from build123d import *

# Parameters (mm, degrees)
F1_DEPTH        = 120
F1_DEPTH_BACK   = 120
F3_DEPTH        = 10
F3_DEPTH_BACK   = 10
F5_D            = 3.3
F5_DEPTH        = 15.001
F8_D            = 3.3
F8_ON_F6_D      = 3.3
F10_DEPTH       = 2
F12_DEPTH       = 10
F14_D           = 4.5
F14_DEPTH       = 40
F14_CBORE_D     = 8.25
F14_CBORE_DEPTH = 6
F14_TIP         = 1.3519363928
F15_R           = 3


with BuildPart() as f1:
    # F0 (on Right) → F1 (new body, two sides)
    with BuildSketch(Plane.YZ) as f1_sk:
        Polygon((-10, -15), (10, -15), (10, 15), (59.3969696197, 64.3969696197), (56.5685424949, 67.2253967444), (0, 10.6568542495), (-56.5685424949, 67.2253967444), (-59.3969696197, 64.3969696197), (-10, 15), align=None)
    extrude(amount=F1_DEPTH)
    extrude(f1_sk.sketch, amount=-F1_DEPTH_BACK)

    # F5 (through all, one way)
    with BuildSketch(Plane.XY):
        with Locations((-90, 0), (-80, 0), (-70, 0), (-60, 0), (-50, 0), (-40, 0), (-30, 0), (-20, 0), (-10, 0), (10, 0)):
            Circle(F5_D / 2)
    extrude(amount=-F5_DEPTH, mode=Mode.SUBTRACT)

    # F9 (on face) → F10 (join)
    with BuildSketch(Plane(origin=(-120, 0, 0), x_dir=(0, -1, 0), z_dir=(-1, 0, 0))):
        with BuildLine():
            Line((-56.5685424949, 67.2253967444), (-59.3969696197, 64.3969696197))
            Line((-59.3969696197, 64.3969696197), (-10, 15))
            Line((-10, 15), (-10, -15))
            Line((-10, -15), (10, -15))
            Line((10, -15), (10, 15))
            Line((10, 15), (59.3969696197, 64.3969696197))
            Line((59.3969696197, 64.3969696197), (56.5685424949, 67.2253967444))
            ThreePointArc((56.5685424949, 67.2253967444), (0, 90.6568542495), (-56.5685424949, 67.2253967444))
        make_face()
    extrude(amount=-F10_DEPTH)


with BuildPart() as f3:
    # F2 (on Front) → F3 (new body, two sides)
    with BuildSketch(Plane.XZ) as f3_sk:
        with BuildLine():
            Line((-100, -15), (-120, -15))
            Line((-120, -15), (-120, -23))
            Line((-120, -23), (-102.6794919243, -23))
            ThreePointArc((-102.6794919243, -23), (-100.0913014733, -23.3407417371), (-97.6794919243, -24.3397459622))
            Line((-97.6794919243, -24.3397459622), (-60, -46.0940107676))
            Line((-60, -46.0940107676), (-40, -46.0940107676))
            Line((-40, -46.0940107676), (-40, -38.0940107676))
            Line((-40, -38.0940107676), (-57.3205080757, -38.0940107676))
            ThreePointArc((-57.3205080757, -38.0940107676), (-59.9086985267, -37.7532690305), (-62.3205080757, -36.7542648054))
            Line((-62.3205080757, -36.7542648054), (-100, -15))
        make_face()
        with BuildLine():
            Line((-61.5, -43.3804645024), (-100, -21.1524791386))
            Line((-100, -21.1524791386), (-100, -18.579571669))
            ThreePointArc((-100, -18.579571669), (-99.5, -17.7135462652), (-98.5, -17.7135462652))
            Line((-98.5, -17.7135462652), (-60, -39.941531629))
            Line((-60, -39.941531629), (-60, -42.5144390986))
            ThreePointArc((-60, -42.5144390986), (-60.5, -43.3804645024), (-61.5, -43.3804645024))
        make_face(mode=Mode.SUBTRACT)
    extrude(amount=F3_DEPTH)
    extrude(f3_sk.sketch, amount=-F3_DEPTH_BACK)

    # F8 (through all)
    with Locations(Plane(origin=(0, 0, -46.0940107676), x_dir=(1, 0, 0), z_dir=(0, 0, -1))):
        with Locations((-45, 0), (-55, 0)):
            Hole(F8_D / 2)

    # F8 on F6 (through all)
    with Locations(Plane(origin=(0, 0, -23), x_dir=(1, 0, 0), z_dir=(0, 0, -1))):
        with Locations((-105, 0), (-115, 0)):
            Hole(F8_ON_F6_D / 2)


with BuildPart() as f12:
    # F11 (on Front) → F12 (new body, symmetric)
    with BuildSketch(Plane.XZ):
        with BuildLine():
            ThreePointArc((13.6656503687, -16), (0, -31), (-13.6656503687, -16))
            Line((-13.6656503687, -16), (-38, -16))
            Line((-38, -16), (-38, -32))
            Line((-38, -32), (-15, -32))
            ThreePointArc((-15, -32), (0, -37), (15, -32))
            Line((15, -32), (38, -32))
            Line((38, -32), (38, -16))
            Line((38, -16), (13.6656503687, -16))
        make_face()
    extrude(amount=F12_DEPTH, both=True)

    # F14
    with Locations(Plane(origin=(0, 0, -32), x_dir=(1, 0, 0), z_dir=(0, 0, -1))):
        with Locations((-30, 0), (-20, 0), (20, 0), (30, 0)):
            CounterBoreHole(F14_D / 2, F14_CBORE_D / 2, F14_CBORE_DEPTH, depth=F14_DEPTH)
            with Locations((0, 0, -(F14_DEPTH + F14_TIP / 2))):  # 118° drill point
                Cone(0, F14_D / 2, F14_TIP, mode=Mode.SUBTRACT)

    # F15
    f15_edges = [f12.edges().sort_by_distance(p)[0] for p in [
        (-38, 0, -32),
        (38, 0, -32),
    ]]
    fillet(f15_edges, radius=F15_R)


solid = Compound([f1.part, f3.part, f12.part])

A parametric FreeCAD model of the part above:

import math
import FreeCAD as App
import Part
import Sketcher

V = App.Vector
Q = App.Units.Quantity


def edges_at(feature, points):
    """Names of the edges that pass closest to the given points."""
    edges = feature.Shape.Edges
    near = lambda p: min(range(len(edges)), key=lambda i: edges[i].distToShape(Part.Vertex(*p))[0])
    return sorted({f"Edge{near(p) + 1}" for p in points})

doc = App.newDocument("Part")
body = doc.addObject("PartDesign::Body", "Body")

sketch1 = body.newObject("Sketcher::SketchObject", "Sketch")
sketch1.AttachmentSupport = (doc.getObject("YZ_Plane"), [""])
sketch1.MapMode = "FlatFace"
sketch1.addGeometry(Part.LineSegment(V(-10, -15, 0), V(10, -15, 0)), False)
sketch1.addGeometry(Part.LineSegment(V(10, -15, 0), V(10, 15, 0)), False)
sketch1.addGeometry(Part.LineSegment(V(10, 15, 0), V(59.4, 64.4, 0)), False)
sketch1.addGeometry(Part.LineSegment(V(59.4, 64.4, 0), V(56.6, 67.2, 0)), False)
sketch1.addGeometry(Part.LineSegment(V(56.6, 67.2, 0), V(0, 10.7, 0)), False)
sketch1.addGeometry(Part.LineSegment(V(0, 10.7, 0), V(-56.6, 67.2, 0)), False)
sketch1.addGeometry(Part.LineSegment(V(-56.6, 67.2, 0), V(-59.4, 64.4, 0)), False)
sketch1.addGeometry(Part.LineSegment(V(-59.4, 64.4, 0), V(-10, 15, 0)), False)
sketch1.addGeometry(Part.LineSegment(V(-10, 15, 0), V(-10, -15, 0)), False)
sketch1.addConstraint(Sketcher.Constraint("Coincident", 0, 2, 1, 1))
sketch1.addConstraint(Sketcher.Constraint("Coincident", 1, 2, 2, 1))
sketch1.addConstraint(Sketcher.Constraint("Coincident", 2, 2, 3, 1))
sketch1.addConstraint(Sketcher.Constraint("Coincident", 3, 2, 4, 1))
sketch1.addConstraint(Sketcher.Constraint("Coincident", 4, 2, 5, 1))
sketch1.addConstraint(Sketcher.Constraint("Coincident", 5, 2, 6, 1))
sketch1.addConstraint(Sketcher.Constraint("Coincident", 6, 2, 7, 1))
sketch1.addConstraint(Sketcher.Constraint("Coincident", 7, 2, 8, 1))
sketch1.addConstraint(Sketcher.Constraint("Coincident", 8, 2, 0, 1))
sketch1.addConstraint(Sketcher.Constraint("Horizontal", 0))
sketch1.addConstraint(Sketcher.Constraint("Vertical", 1))
sketch1.addConstraint(Sketcher.Constraint("Vertical", 8))
sketch1.addConstraint(Sketcher.Constraint("Symmetric", 0, 2, 7, 2, -1, 1))
sketch1.addConstraint(Sketcher.Constraint("Symmetric", 3, 2, 5, 2, -2))
sketch1.addConstraint(Sketcher.Constraint("Symmetric", 2, 2, 6, 2, -2))
sketch1.addConstraint(Sketcher.Constraint("PointOnObject", 4, 2, -2))
sketch1.addConstraint(Sketcher.Constraint("Perpendicular", 2, 3))
sketch1.addConstraint(Sketcher.Constraint("Perpendicular", 3, 4))
sketch1.addConstraint(Sketcher.Constraint("Perpendicular", 4, 5))
sketch1.addConstraint(Sketcher.Constraint("Perpendicular", 6, 7))
sketch1.addConstraint(Sketcher.Constraint("DistanceX", 0, 1, 0, 2, Q("20 mm")))
sketch1.addConstraint(Sketcher.Constraint("DistanceY", 1, 1, 1, 2, Q("30 mm")))
sketch1.addConstraint(Sketcher.Constraint("Distance", 3, Q("4 mm")))
sketch1.addConstraint(Sketcher.Constraint("Distance", 4, Q("80 mm")))
pad1 = body.newObject("PartDesign::Pad", "Pad")
pad1.Profile = sketch1
pad1.Type = "TwoLengths"
pad1.Length = 120
pad1.Length2 = 120

sketch2 = body.newObject("Sketcher::SketchObject", "Sketch001")
sketch2.AttachmentSupport = (doc.getObject("XY_Plane"), [""])
sketch2.MapMode = "FlatFace"
sketch2.addGeometry(Part.Circle(V(10, 0, 0), V(0, 0, 1), 1.6), False)
sketch2.addGeometry(Part.Circle(V(-90, 0, 0), V(0, 0, 1), 1.6), False)
sketch2.addGeometry(Part.Circle(V(-80, 0, 0), V(0, 0, 1), 1.6), False)
sketch2.addGeometry(Part.Circle(V(-70, 0, 0), V(0, 0, 1), 1.6), False)
sketch2.addGeometry(Part.Circle(V(-60, 0, 0), V(0, 0, 1), 1.6), False)
sketch2.addGeometry(Part.Circle(V(-50, 0, 0), V(0, 0, 1), 1.6), False)
sketch2.addGeometry(Part.Circle(V(-40, 0, 0), V(0, 0, 1), 1.6), False)
sketch2.addGeometry(Part.Circle(V(-30, 0, 0), V(0, 0, 1), 1.6), False)
sketch2.addGeometry(Part.Circle(V(-20, 0, 0), V(0, 0, 1), 1.6), False)
sketch2.addGeometry(Part.Circle(V(-10, 0, 0), V(0, 0, 1), 1.6), False)
sketch2.addConstraint(Sketcher.Constraint("Equal", 0, 1))
sketch2.addConstraint(Sketcher.Constraint("Equal", 1, 2))
sketch2.addConstraint(Sketcher.Constraint("Equal", 2, 3))
sketch2.addConstraint(Sketcher.Constraint("Equal", 3, 4))
sketch2.addConstraint(Sketcher.Constraint("Equal", 4, 5))
sketch2.addConstraint(Sketcher.Constraint("Equal", 5, 6))
sketch2.addConstraint(Sketcher.Constraint("Equal", 6, 7))
sketch2.addConstraint(Sketcher.Constraint("Equal", 7, 8))
sketch2.addConstraint(Sketcher.Constraint("Equal", 8, 9))
sketch2.addConstraint(Sketcher.Constraint("Symmetric", 0, 3, 9, 3, -1, 1))
sketch2.addConstraint(Sketcher.Constraint("PointOnObject", 0, 3, -1))
sketch2.addConstraint(Sketcher.Constraint("PointOnObject", 1, 3, -1))
sketch2.addConstraint(Sketcher.Constraint("PointOnObject", 2, 3, -1))
sketch2.addConstraint(Sketcher.Constraint("PointOnObject", 3, 3, -1))
sketch2.addConstraint(Sketcher.Constraint("PointOnObject", 4, 3, -1))
sketch2.addConstraint(Sketcher.Constraint("PointOnObject", 5, 3, -1))
sketch2.addConstraint(Sketcher.Constraint("PointOnObject", 6, 3, -1))
sketch2.addConstraint(Sketcher.Constraint("PointOnObject", 7, 3, -1))
sketch2.addConstraint(Sketcher.Constraint("PointOnObject", 8, 3, -1))
sketch2.addConstraint(Sketcher.Constraint("Diameter", 0, Q("3.3 mm")))
sketch2.addConstraint(Sketcher.Constraint("DistanceX", -1, 1, 0, 3, Q("10 mm")))
sketch2.addConstraint(Sketcher.Constraint("DistanceX", 1, 3, -1, 1, Q("90 mm")))
sketch2.addConstraint(Sketcher.Constraint("DistanceX", 2, 3, -1, 1, Q("80 mm")))
sketch2.addConstraint(Sketcher.Constraint("DistanceX", 3, 3, -1, 1, Q("70 mm")))
sketch2.addConstraint(Sketcher.Constraint("DistanceX", 4, 3, -1, 1, Q("60 mm")))
sketch2.addConstraint(Sketcher.Constraint("DistanceX", 5, 3, -1, 1, Q("50 mm")))
sketch2.addConstraint(Sketcher.Constraint("DistanceX", 6, 3, -1, 1, Q("40 mm")))
sketch2.addConstraint(Sketcher.Constraint("DistanceX", 7, 3, -1, 1, Q("30 mm")))
sketch2.addConstraint(Sketcher.Constraint("DistanceX", 8, 3, -1, 1, Q("20 mm")))
pocket1 = body.newObject("PartDesign::Pocket", "Pocket")
pocket1.Profile = sketch2
pocket1.Type = "ThroughAll"

sketch3 = body.newObject("Sketcher::SketchObject", "Sketch002")
sketch3.AttachmentSupport = (doc.getObject("YZ_Plane"), [""])
sketch3.MapMode = "FlatFace"
sketch3.AttachmentOffset = App.Placement(V(0, 0, -120), App.Rotation())
sketch3.addGeometry(Part.LineSegment(V(56.6, 67.2, 0), V(59.4, 64.4, 0)), False)
sketch3.addGeometry(Part.LineSegment(V(59.4, 64.4, 0), V(10, 15, 0)), False)
sketch3.addGeometry(Part.LineSegment(V(10, 15, 0), V(10, -15, 0)), False)
sketch3.addGeometry(Part.LineSegment(V(10, -15, 0), V(-10, -15, 0)), False)
sketch3.addGeometry(Part.LineSegment(V(-10, -15, 0), V(-10, 15, 0)), False)
sketch3.addGeometry(Part.LineSegment(V(-10, 15, 0), V(-59.4, 64.4, 0)), False)
sketch3.addGeometry(Part.LineSegment(V(-59.4, 64.4, 0), V(-56.6, 67.2, 0)), False)
sketch3.addGeometry(Part.ArcOfCircle(Part.Circle(V(0, 10.7, 0), V(0, 0, 1), 80), math.radians(45), math.radians(135)), False)
sketch3.addConstraint(Sketcher.Constraint("Coincident", 0, 2, 1, 1))
sketch3.addConstraint(Sketcher.Constraint("Coincident", 1, 2, 2, 1))
sketch3.addConstraint(Sketcher.Constraint("Coincident", 2, 2, 3, 1))
sketch3.addConstraint(Sketcher.Constraint("Coincident", 3, 2, 4, 1))
sketch3.addConstraint(Sketcher.Constraint("Coincident", 4, 2, 5, 1))
sketch3.addConstraint(Sketcher.Constraint("Coincident", 5, 2, 6, 1))
sketch3.addConstraint(Sketcher.Constraint("Tangent", 6, 2, 7, 2))
sketch3.addConstraint(Sketcher.Constraint("Tangent", 7, 1, 0, 1))
sketch3.addConstraint(Sketcher.Constraint("Vertical", 2))
sketch3.addConstraint(Sketcher.Constraint("Horizontal", 3))
sketch3.addConstraint(Sketcher.Constraint("Vertical", 4))
sketch3.addConstraint(Sketcher.Constraint("Symmetric", 1, 2, 3, 2, -1, 1))
sketch3.addConstraint(Sketcher.Constraint("Symmetric", 0, 2, 5, 2, -2))
sketch3.addConstraint(Sketcher.Constraint("PointOnObject", 7, 3, -2))
sketch3.addConstraint(Sketcher.Constraint("Perpendicular", 0, 1))
sketch3.addConstraint(Sketcher.Constraint("Perpendicular", 1, 5))
sketch3.addConstraint(Sketcher.Constraint("Perpendicular", 5, 6))
sketch3.addConstraint(Sketcher.Constraint("Radius", 7, Q("80 mm")))
sketch3.addConstraint(Sketcher.Constraint("DistanceX", 3, 2, 3, 1, Q("20 mm")))
sketch3.addConstraint(Sketcher.Constraint("DistanceY", 2, 2, 2, 1, Q("30 mm")))
sketch3.addConstraint(Sketcher.Constraint("Distance", 0, Q("4 mm")))
pad2 = body.newObject("PartDesign::Pad", "Pad001")
pad2.Profile = sketch3
pad2.Length = 2
body2 = doc.addObject("PartDesign::Body", "Body001")

sketch4 = body2.newObject("Sketcher::SketchObject", "Sketch003")
sketch4.AttachmentSupport = (doc.getObject("XZ_Plane001"), [""])
sketch4.MapMode = "FlatFace"
sketch4.addGeometry(Part.LineSegment(V(-100, -15, 0), V(-120, -15, 0)), False)
sketch4.addGeometry(Part.LineSegment(V(-120, -15, 0), V(-120, -23, 0)), False)
sketch4.addGeometry(Part.LineSegment(V(-120, -23, 0), V(-102.7, -23, 0)), False)
sketch4.addGeometry(Part.ArcOfCircle(Part.Circle(V(-102.7, -33, 0), V(0, 0, 1), 10), math.radians(60), math.radians(90)), False)
sketch4.addGeometry(Part.LineSegment(V(-97.7, -24.3, 0), V(-60, -46.1, 0)), False)
sketch4.addGeometry(Part.LineSegment(V(-60, -46.1, 0), V(-40, -46.1, 0)), False)
sketch4.addGeometry(Part.LineSegment(V(-40, -46.1, 0), V(-40, -38.1, 0)), False)
sketch4.addGeometry(Part.LineSegment(V(-40, -38.1, 0), V(-57.3, -38.1, 0)), False)
sketch4.addGeometry(Part.ArcOfCircle(Part.Circle(V(-57.3, -28.1, 0), V(0, 0, 1), 10), math.radians(-120), math.radians(-90)), False)
sketch4.addGeometry(Part.LineSegment(V(-62.3, -36.8, 0), V(-100, -15, 0)), False)
sketch4.addGeometry(Part.ArcOfCircle(Part.Circle(V(-61, -42.5, 0), V(0, 0, 1), 1), math.radians(-120), math.radians(0)), False)
sketch4.addGeometry(Part.LineSegment(V(-61.5, -43.4, 0), V(-100, -21.2, 0)), False)
sketch4.addGeometry(Part.LineSegment(V(-100, -21.2, 0), V(-100, -18.6, 0)), False)
sketch4.addGeometry(Part.ArcOfCircle(Part.Circle(V(-99, -18.6, 0), V(0, 0, 1), 1), math.radians(60), math.radians(180)), False)
sketch4.addGeometry(Part.LineSegment(V(-98.5, -17.7, 0), V(-60, -39.9, 0)), False)
sketch4.addGeometry(Part.LineSegment(V(-60, -39.9, 0), V(-60, -42.5, 0)), False)
sketch4.addConstraint(Sketcher.Constraint("Coincident", 0, 2, 1, 1))
sketch4.addConstraint(Sketcher.Constraint("Coincident", 1, 2, 2, 1))
sketch4.addConstraint(Sketcher.Constraint("Tangent", 2, 2, 3, 2))
sketch4.addConstraint(Sketcher.Constraint("Tangent", 3, 1, 4, 1))
sketch4.addConstraint(Sketcher.Constraint("Coincident", 4, 2, 5, 1))
sketch4.addConstraint(Sketcher.Constraint("Coincident", 5, 2, 6, 1))
sketch4.addConstraint(Sketcher.Constraint("Coincident", 6, 2, 7, 1))
sketch4.addConstraint(Sketcher.Constraint("Tangent", 7, 2, 8, 2))
sketch4.addConstraint(Sketcher.Constraint("Tangent", 8, 1, 9, 1))
sketch4.addConstraint(Sketcher.Constraint("Coincident", 9, 2, 0, 1))
sketch4.addConstraint(Sketcher.Constraint("Tangent", 10, 1, 11, 1))
sketch4.addConstraint(Sketcher.Constraint("Coincident", 11, 2, 12, 1))
sketch4.addConstraint(Sketcher.Constraint("Tangent", 12, 2, 13, 2))
sketch4.addConstraint(Sketcher.Constraint("Tangent", 13, 1, 14, 1))
sketch4.addConstraint(Sketcher.Constraint("Coincident", 14, 2, 15, 1))
sketch4.addConstraint(Sketcher.Constraint("Tangent", 15, 2, 10, 2))
sketch4.addConstraint(Sketcher.Constraint("Horizontal", 0))
sketch4.addConstraint(Sketcher.Constraint("Vertical", 1))
sketch4.addConstraint(Sketcher.Constraint("Horizontal", 2))
sketch4.addConstraint(Sketcher.Constraint("Horizontal", 5))
sketch4.addConstraint(Sketcher.Constraint("Vertical", 6))
sketch4.addConstraint(Sketcher.Constraint("Horizontal", 7))
sketch4.addConstraint(Sketcher.Constraint("Vertical", 12))
sketch4.addConstraint(Sketcher.Constraint("Vertical", 15))
sketch4.addConstraint(Sketcher.Constraint("Equal", 3, 8))
sketch4.addConstraint(Sketcher.Constraint("Equal", 10, 13))
sketch4.addConstraint(Sketcher.Constraint("Parallel", 4, 9))
sketch4.addConstraint(Sketcher.Constraint("Parallel", 9, 11))
sketch4.addConstraint(Sketcher.Constraint("Parallel", 11, 14))
sketch4.addConstraint(Sketcher.Constraint("Vertical", 9, 2, 11, 2))
sketch4.addConstraint(Sketcher.Constraint("Vertical", 4, 2, 14, 2))
sketch4.addConstraint(Sketcher.Constraint("Equal", 0, 5))
sketch4.addConstraint(Sketcher.Constraint("Equal", 2, 7))
sketch4.addConstraint(Sketcher.Constraint("Radius", 3, Q("10 mm")))
sketch4.addConstraint(Sketcher.Constraint("Radius", 10, Q("1 mm")))
sketch4.addConstraint(Sketcher.Constraint("DistanceX", 0, 2, 0, 1, Q("20 mm")))
sketch4.addConstraint(Sketcher.Constraint("DistanceY", 1, 2, 1, 1, Q("8 mm")))
sketch4.addConstraint(Sketcher.Constraint("Angle", 4, Q("-30 deg")))
sketch4.addConstraint(Sketcher.Constraint("DistanceY", 3, 3, -1, 1, Q("33 mm")))
sketch4.addConstraint(Sketcher.Constraint("DistanceX", 10, 3, -1, 1, Q("61 mm")))
sketch4.addConstraint(Sketcher.Constraint("DistanceX", 13, 3, -1, 1, Q("99 mm")))
sketch4.addConstraint(Sketcher.Constraint("DistanceX", 2, 1, 2, 2, Q("17.320508 mm")))
sketch4.addConstraint(Sketcher.Constraint("DistanceY", 10, 1, 8, 1, Q("6.6262 mm")))
sketch4.addConstraint(Sketcher.Constraint("DistanceY", 3, 1, 13, 1, Q("6.6262 mm")))
pad3 = body2.newObject("PartDesign::Pad", "Pad002")
pad3.Profile = sketch4
pad3.Type = "TwoLengths"
pad3.Length = 10
pad3.Length2 = 10

sketch5 = body2.newObject("Sketcher::SketchObject", "Sketch004")
sketch5.AttachmentSupport = (doc.getObject("XY_Plane001"), [""])
sketch5.MapMode = "FlatFace"
sketch5.AttachmentOffset = App.Placement(V(0, 0, -46.094011), App.Rotation())
sketch5.addGeometry(Part.Circle(V(-45, 0, 0), V(0, 0, 1), 1.6), False)
sketch5.addGeometry(Part.Circle(V(-55, 0, 0), V(0, 0, 1), 1.6), False)
sketch5.addConstraint(Sketcher.Constraint("Equal", 0, 1))
sketch5.addConstraint(Sketcher.Constraint("PointOnObject", 0, 3, -1))
sketch5.addConstraint(Sketcher.Constraint("PointOnObject", 1, 3, -1))
sketch5.addConstraint(Sketcher.Constraint("Diameter", 0, Q("3.3 mm")))
sketch5.addConstraint(Sketcher.Constraint("DistanceX", 0, 3, -1, 1, Q("45 mm")))
sketch5.addConstraint(Sketcher.Constraint("DistanceX", 1, 3, -1, 1, Q("55 mm")))
doc.recompute()
hole = body2.newObject("PartDesign::Hole", "Hole")
hole.Profile = sketch5
hole.ThreadType = "None"
hole.Diameter = 3.3
hole.DepthType = "ThroughAll"
hole.Reversed = True

sketch6 = body2.newObject("Sketcher::SketchObject", "Sketch005")
sketch6.AttachmentSupport = (doc.getObject("XY_Plane001"), [""])
sketch6.MapMode = "FlatFace"
sketch6.AttachmentOffset = App.Placement(V(0, 0, -23), App.Rotation())
sketch6.addGeometry(Part.Circle(V(-105, 0, 0), V(0, 0, 1), 1.6), False)
sketch6.addGeometry(Part.Circle(V(-115, 0, 0), V(0, 0, 1), 1.6), False)
sketch6.addConstraint(Sketcher.Constraint("Equal", 0, 1))
sketch6.addConstraint(Sketcher.Constraint("PointOnObject", 0, 3, -1))
sketch6.addConstraint(Sketcher.Constraint("PointOnObject", 1, 3, -1))
sketch6.addConstraint(Sketcher.Constraint("Diameter", 0, Q("3.3 mm")))
sketch6.addConstraint(Sketcher.Constraint("DistanceX", 0, 3, -1, 1, Q("105 mm")))
sketch6.addConstraint(Sketcher.Constraint("DistanceX", 1, 3, -1, 1, Q("115 mm")))
doc.recompute()
hole2 = body2.newObject("PartDesign::Hole", "Hole001")
hole2.Profile = sketch6
hole2.ThreadType = "None"
hole2.Diameter = 3.3
hole2.DepthType = "ThroughAll"
hole2.Reversed = True
body3 = doc.addObject("PartDesign::Body", "Body002")

sketch7 = body3.newObject("Sketcher::SketchObject", "Sketch006")
sketch7.AttachmentSupport = (doc.getObject("XZ_Plane002"), [""])
sketch7.MapMode = "FlatFace"
sketch7.addGeometry(Part.ArcOfCircle(Part.Circle(V(0, -17, 0), V(0, 0, 1), 14), math.radians(175), math.radians(365)), False)
sketch7.addGeometry(Part.LineSegment(V(-14, -16, 0), V(-38, -16, 0)), False)
sketch7.addGeometry(Part.LineSegment(V(-38, -16, 0), V(-38, -32, 0)), False)
sketch7.addGeometry(Part.LineSegment(V(-38, -32, 0), V(-15, -32, 0)), False)
sketch7.addGeometry(Part.ArcOfCircle(Part.Circle(V(0, -12, 0), V(0, 0, 1), 25), math.radians(-127), math.radians(-53)), False)
sketch7.addGeometry(Part.LineSegment(V(15, -32, 0), V(38, -32, 0)), False)
sketch7.addGeometry(Part.LineSegment(V(38, -32, 0), V(38, -16, 0)), False)
sketch7.addGeometry(Part.LineSegment(V(38, -16, 0), V(14, -16, 0)), False)
sketch7.addConstraint(Sketcher.Constraint("Coincident", 0, 1, 1, 1))
sketch7.addConstraint(Sketcher.Constraint("Coincident", 1, 2, 2, 1))
sketch7.addConstraint(Sketcher.Constraint("Coincident", 2, 2, 3, 1))
sketch7.addConstraint(Sketcher.Constraint("Coincident", 3, 2, 4, 1))
sketch7.addConstraint(Sketcher.Constraint("Coincident", 4, 2, 5, 1))
sketch7.addConstraint(Sketcher.Constraint("Coincident", 5, 2, 6, 1))
sketch7.addConstraint(Sketcher.Constraint("Coincident", 6, 2, 7, 1))
sketch7.addConstraint(Sketcher.Constraint("Coincident", 7, 2, 0, 2))
sketch7.addConstraint(Sketcher.Constraint("Horizontal", 1))
sketch7.addConstraint(Sketcher.Constraint("Vertical", 2))
sketch7.addConstraint(Sketcher.Constraint("Horizontal", 3))
sketch7.addConstraint(Sketcher.Constraint("Horizontal", 5))
sketch7.addConstraint(Sketcher.Constraint("Vertical", 6))
sketch7.addConstraint(Sketcher.Constraint("Horizontal", 7))
sketch7.addConstraint(Sketcher.Constraint("Symmetric", 3, 2, 4, 2, -2))
sketch7.addConstraint(Sketcher.Constraint("Symmetric", 1, 2, 6, 2, -2))
sketch7.addConstraint(Sketcher.Constraint("PointOnObject", 0, 3, -2))
sketch7.addConstraint(Sketcher.Constraint("Radius", 4, Q("25 mm")))
sketch7.addConstraint(Sketcher.Constraint("DistanceX", 3, 1, 3, 2, Q("23 mm")))
sketch7.addConstraint(Sketcher.Constraint("DistanceY", 2, 2, 2, 1, Q("16 mm")))
sketch7.addConstraint(Sketcher.Constraint("DistanceY", 4, 3, -1, 1, Q("12 mm")))
sketch7.addConstraint(Sketcher.Constraint("DistanceY", 0, 1, -1, 1, Q("16 mm")))
sketch7.addConstraint(Sketcher.Constraint("Radius", 0, Q("13.725 mm")))
sketch7.addConstraint(Sketcher.Constraint("DistanceY", 0, 3, -1, 1, Q("17.275 mm")))
pad4 = body3.newObject("PartDesign::Pad", "Pad003")
pad4.Profile = sketch7
pad4.Length = 20
pad4.Midplane = True

sketch8 = body3.newObject("Sketcher::SketchObject", "Sketch007")
sketch8.AttachmentSupport = (doc.getObject("XY_Plane002"), [""])
sketch8.MapMode = "FlatFace"
sketch8.AttachmentOffset = App.Placement(V(0, 0, -32), App.Rotation())
sketch8.addGeometry(Part.Circle(V(-30, 0, 0), V(0, 0, 1), 2.2), False)
sketch8.addGeometry(Part.Circle(V(-20, 0, 0), V(0, 0, 1), 2.2), False)
sketch8.addGeometry(Part.Circle(V(20, 0, 0), V(0, 0, 1), 2.2), False)
sketch8.addGeometry(Part.Circle(V(30, 0, 0), V(0, 0, 1), 2.2), False)
sketch8.addConstraint(Sketcher.Constraint("Equal", 0, 1))
sketch8.addConstraint(Sketcher.Constraint("Equal", 1, 2))
sketch8.addConstraint(Sketcher.Constraint("Equal", 2, 3))
sketch8.addConstraint(Sketcher.Constraint("Symmetric", 1, 3, 2, 3, -1, 1))
sketch8.addConstraint(Sketcher.Constraint("Symmetric", 0, 3, 3, 3, -1, 1))
sketch8.addConstraint(Sketcher.Constraint("PointOnObject", 0, 3, -1))
sketch8.addConstraint(Sketcher.Constraint("PointOnObject", 1, 3, -1))
sketch8.addConstraint(Sketcher.Constraint("Diameter", 0, Q("4.5 mm")))
sketch8.addConstraint(Sketcher.Constraint("DistanceX", 0, 3, -1, 1, Q("30 mm")))
sketch8.addConstraint(Sketcher.Constraint("DistanceX", 1, 3, -1, 1, Q("20 mm")))
doc.recompute()
hole3 = body3.newObject("PartDesign::Hole", "Hole002")
hole3.Profile = sketch8
hole3.ThreadType = "None"
hole3.Diameter = 4.5
hole3.DepthType = "Dimension"
hole3.Depth = 40
hole3.DrillPoint = "Angled"
hole3.DrillPointAngle = 118
hole3.HoleCutType = "Counterbore"
hole3.HoleCutDiameter = 8.25
hole3.HoleCutDepth = 6
hole3.Reversed = True
doc.recompute()

fillet = body3.newObject("PartDesign::Fillet", "Fillet")
fillet.Base = (hole3, edges_at(hole3, [(-38, 0, -32), (38, 0, -32)]))
fillet.Radius = 3

doc.recompute()
